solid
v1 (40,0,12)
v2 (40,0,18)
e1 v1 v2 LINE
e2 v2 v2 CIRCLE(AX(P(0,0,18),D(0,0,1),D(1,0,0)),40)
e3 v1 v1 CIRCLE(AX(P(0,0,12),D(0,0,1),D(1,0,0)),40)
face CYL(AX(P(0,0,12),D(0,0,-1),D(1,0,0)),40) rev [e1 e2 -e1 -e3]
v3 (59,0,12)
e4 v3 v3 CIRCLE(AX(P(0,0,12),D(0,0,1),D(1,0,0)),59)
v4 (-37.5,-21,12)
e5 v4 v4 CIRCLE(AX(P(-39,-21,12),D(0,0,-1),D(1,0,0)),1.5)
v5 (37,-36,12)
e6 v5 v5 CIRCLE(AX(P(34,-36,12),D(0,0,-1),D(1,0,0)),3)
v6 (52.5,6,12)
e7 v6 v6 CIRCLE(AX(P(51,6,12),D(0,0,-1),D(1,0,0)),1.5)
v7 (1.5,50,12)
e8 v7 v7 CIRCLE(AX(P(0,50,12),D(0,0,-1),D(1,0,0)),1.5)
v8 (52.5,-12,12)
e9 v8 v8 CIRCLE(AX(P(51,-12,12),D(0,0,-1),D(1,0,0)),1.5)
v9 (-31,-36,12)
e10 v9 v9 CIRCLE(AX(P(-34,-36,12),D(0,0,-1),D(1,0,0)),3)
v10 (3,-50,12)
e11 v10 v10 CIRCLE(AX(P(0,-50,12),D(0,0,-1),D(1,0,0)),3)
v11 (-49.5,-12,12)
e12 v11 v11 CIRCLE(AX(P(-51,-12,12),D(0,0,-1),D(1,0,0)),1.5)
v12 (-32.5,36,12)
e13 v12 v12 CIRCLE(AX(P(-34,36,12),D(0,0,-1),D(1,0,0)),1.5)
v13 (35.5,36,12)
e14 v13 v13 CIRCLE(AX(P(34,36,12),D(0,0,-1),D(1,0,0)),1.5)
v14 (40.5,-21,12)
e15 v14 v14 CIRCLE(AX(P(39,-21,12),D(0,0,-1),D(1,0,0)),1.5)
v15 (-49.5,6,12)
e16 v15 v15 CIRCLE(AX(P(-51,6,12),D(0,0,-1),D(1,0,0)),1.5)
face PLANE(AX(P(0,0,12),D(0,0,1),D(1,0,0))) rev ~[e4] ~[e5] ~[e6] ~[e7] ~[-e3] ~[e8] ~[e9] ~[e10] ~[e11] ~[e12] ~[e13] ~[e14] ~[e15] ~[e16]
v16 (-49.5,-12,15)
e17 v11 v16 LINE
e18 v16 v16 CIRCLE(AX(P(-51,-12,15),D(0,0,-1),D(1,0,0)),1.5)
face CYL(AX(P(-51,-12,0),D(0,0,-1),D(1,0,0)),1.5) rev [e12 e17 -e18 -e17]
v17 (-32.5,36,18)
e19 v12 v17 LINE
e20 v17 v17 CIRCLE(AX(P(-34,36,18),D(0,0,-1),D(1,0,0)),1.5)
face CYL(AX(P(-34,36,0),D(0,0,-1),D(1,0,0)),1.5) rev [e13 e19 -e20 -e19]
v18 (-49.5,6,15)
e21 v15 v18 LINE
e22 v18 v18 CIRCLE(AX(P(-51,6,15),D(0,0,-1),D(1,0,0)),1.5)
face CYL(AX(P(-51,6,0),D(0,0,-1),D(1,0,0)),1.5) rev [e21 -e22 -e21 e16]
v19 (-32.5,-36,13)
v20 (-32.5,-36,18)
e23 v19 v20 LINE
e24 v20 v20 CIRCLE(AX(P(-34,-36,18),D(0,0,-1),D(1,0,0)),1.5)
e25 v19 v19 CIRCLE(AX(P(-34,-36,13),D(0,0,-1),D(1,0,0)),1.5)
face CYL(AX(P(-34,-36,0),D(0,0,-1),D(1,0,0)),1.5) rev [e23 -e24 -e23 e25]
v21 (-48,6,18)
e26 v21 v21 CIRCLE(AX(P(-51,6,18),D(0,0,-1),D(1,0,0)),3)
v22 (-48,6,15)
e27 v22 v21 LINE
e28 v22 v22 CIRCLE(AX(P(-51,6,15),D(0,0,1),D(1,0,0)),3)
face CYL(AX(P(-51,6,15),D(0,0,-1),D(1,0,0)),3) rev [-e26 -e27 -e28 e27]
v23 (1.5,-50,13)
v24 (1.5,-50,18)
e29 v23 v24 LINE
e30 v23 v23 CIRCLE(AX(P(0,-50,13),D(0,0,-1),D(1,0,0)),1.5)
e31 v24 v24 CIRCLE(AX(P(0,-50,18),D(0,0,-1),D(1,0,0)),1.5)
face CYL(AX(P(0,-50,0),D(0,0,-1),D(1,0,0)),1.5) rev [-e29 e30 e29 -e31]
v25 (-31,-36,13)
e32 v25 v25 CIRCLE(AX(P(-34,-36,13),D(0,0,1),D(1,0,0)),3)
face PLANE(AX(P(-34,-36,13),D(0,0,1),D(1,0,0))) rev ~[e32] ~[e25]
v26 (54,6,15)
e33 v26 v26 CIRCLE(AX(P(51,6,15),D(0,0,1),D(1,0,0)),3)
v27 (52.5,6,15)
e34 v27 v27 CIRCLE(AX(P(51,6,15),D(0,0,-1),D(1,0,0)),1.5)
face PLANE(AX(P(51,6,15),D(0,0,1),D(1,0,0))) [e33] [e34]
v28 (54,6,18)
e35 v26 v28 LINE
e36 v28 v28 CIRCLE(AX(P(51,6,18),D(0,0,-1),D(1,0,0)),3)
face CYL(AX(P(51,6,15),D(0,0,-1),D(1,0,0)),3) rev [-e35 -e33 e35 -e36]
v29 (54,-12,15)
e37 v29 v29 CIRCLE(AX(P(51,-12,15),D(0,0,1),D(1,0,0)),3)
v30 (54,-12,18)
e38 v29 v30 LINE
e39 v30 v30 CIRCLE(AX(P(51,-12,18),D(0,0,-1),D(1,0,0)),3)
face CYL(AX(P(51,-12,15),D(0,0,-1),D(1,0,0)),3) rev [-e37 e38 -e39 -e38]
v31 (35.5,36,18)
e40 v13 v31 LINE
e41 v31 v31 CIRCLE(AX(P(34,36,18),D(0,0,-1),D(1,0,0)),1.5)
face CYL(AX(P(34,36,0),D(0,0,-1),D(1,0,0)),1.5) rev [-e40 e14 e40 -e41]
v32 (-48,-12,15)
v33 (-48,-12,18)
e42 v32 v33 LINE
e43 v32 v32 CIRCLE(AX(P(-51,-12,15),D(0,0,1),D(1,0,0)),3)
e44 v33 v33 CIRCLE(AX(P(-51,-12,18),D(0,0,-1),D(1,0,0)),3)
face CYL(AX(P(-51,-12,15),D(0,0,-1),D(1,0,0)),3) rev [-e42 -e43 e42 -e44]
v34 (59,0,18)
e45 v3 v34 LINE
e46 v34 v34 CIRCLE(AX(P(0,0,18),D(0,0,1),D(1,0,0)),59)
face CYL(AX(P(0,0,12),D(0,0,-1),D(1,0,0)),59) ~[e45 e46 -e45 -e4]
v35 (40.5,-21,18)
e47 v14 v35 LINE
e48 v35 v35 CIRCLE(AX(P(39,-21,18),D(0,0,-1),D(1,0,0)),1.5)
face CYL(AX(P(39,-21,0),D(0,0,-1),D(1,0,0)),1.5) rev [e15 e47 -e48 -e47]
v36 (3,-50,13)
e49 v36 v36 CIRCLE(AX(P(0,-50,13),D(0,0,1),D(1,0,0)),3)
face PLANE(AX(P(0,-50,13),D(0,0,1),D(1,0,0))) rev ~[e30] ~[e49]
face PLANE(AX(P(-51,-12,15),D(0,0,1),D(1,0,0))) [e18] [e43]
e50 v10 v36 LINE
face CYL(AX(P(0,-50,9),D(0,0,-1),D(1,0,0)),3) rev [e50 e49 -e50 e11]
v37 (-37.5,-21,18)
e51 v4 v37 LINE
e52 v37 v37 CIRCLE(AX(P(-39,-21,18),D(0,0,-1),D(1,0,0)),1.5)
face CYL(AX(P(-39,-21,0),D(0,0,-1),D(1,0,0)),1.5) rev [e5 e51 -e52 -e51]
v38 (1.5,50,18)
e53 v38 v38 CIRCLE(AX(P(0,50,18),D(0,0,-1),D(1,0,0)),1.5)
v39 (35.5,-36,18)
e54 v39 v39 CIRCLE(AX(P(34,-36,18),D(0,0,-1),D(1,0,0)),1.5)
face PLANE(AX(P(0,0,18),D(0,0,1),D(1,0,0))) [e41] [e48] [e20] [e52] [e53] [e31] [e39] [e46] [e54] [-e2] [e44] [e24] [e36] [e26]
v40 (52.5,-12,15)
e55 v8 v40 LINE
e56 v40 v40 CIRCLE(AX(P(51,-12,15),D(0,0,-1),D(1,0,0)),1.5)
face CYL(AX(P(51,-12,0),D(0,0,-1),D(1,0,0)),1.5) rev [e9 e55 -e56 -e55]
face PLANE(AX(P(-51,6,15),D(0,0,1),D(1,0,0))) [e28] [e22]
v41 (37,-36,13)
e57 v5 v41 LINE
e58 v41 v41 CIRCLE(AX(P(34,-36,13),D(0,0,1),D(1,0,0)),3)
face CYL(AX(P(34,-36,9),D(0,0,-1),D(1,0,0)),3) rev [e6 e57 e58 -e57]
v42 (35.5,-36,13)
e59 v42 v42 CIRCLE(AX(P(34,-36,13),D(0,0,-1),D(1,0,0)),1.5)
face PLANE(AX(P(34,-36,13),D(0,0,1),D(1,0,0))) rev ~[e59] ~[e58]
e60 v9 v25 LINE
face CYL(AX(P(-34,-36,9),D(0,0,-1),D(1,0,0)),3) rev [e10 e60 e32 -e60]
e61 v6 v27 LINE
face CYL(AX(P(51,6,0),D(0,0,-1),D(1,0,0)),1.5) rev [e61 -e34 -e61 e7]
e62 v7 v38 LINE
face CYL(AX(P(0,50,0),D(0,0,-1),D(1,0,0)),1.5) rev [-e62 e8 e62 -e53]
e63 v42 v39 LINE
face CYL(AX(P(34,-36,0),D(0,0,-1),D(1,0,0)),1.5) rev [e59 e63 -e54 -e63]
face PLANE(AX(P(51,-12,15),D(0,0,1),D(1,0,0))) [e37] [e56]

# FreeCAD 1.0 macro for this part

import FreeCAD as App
import Part
import Sketcher
from FreeCAD import Vector
Q = App.Units.Quantity

doc = App.newDocument("Part")
body = doc.addObject("PartDesign::Body", "Body")

# Sketch on XY plane
sketch1 = body.newObject("Sketcher::SketchObject", "Sketch")
sketch1.AttachmentSupport = (doc.getObject("XY_Plane"), [""])
sketch1.MapMode = "FlatFace"
sketch1.addGeometry(Part.Circle(Vector(39, -21, 0), Vector(0, 0, 1), 1.5), False)
sketch1.addConstraint([
    Sketcher.Constraint("Diameter", 0, Q("3 mm")),
    Sketcher.Constraint("DistanceX", -1, 1, 0, 3, Q("39 mm")),
    Sketcher.Constraint("DistanceY", 0, 3, -1, 1, Q("21 mm")),
])
pad1 = body.newObject("PartDesign::Pad", "Pad")
pad1.Profile = sketch1
pad1.Length = 100
body2 = doc.addObject("PartDesign::Body", "Body001")
body2.AllowCompound = True

# Sketch on XY plane
sketch2 = body2.newObject("Sketcher::SketchObject", "Sketch001")
sketch2.AttachmentSupport = (doc.getObject("XY_Plane001"), [""])
sketch2.MapMode = "FlatFace"
sketch2.addGeometry(Part.Circle(Vector(-39, -21, 0), Vector(0, 0, 1), 1.5), False)
sketch2.addConstraint([
    Sketcher.Constraint("Diameter", 0, Q("3 mm")),
    Sketcher.Constraint("DistanceX", 0, 3, -1, 1, Q("39 mm")),
    Sketcher.Constraint("DistanceY", 0, 3, -1, 1, Q("21 mm")),
])
pad2 = body2.newObject("PartDesign::Pad", "Pad001")
pad2.Profile = sketch2
pad2.Length = 100
doc.recompute()

boolean = body2.newObject("PartDesign::Boolean", "Boolean")
boolean.Type = "Fuse"
boolean.addObjects([body])
body3 = doc.addObject("PartDesign::Body", "Body002")

# Sketch on XY plane
sketch3 = body3.newObject("Sketcher::SketchObject", "Sketch002")
sketch3.AttachmentSupport = (doc.getObject("XY_Plane002"), [""])
sketch3.MapMode = "FlatFace"
sketch3.addGeometry(Part.Circle(Vector(0, -50, 0), Vector(0, 0, 1), 1.5), False)
sketch3.addConstraint([
    Sketcher.Constraint("PointOnObject", 0, 3, -2),
    Sketcher.Constraint("Diameter", 0, Q("3 mm")),
    Sketcher.Constraint("DistanceY", 0, 3, -1, 1, Q("50 mm")),
])
pad3 = body3.newObject("PartDesign::Pad", "Pad002")
pad3.Profile = sketch3
pad3.Length = 50
body4 = doc.addObject("PartDesign::Body", "Body003")

# Sketch on XY plane
sketch4 = body4.newObject("Sketcher::SketchObject", "Sketch003")
sketch4.AttachmentSupport = (doc.getObject("XY_Plane003"), [""])
sketch4.MapMode = "FlatFace"
sketch4.AttachmentOffset = App.Placement(Vector(0, 0, 9), App.Rotation())
sketch4.addGeometry(Part.Circle(Vector(0, -50, 0), Vector(0, 0, 1), 3), False)
sketch4.addConstraint([
    Sketcher.Constraint("PointOnObject", 0, 3, -2),
    Sketcher.Constraint("Diameter", 0, Q("6 mm")),
    Sketcher.Constraint("DistanceY", 0, 3, -1, 1, Q("50 mm")),
])
pad4 = body4.newObject("PartDesign::Pad", "Pad003")
pad4.Profile = sketch4
pad4.Length = 4
body5 = doc.addObject("PartDesign::Body", "Body004")

# Sketch on XY plane
sketch5 = body5.newObject("Sketcher::SketchObject", "Sketch004")
sketch5.AttachmentSupport = (doc.getObject("XY_Plane004"), [""])
sketch5.MapMode = "FlatFace"
sketch5.addGeometry(Part.Circle(Vector(0, 50, 0), Vector(0, 0, 1), 1.5), False)
sketch5.addConstraint([
    Sketcher.Constraint("PointOnObject", 0, 3, -2),
    Sketcher.Constraint("Diameter", 0, Q("3 mm")),
    Sketcher.Constraint("DistanceY", -1, 1, 0, 3, Q("50 mm")),
])
pad5 = body5.newObject("PartDesign::Pad", "Pad004")
pad5.Profile = sketch5
pad5.Length = 50
body6 = doc.addObject("PartDesign::Body", "Body005")

# Sketch on XY plane
sketch6 = body6.newObject("Sketcher::SketchObject", "Sketch005")
sketch6.AttachmentSupport = (doc.getObject("XY_Plane005"), [""])
sketch6.MapMode = "FlatFace"
sketch6.addGeometry(Part.Circle(Vector(-34, -36, 0), Vector(0, 0, 1), 1.5), False)
sketch6.addConstraint([
    Sketcher.Constraint("Diameter", 0, Q("3 mm")),
    Sketcher.Constraint("DistanceX", 0, 3, -1, 1, Q("34 mm")),
    Sketcher.Constraint("DistanceY", 0, 3, -1, 1, Q("36 mm")),
])
pad6 = body6.newObject("PartDesign::Pad", "Pad005")
pad6.Profile = sketch6
pad6.Length = 50
body7 = doc.addObject("PartDesign::Body", "Body006")
body7.AllowCompound = True

# Sketch on XY plane
sketch7 = body7.newObject("Sketcher::SketchObject", "Sketch006")
sketch7.AttachmentSupport = (doc.getObject("XY_Plane006"), [""])
sketch7.MapMode = "FlatFace"
sketch7.addGeometry(Part.Circle(Vector(34, -36, 0), Vector(0, 0, 1), 1.5), False)
sketch7.addConstraint([
    Sketcher.Constraint("Diameter", 0, Q("3 mm")),
    Sketcher.Constraint("DistanceX", -1, 1, 0, 3, Q("34 mm")),
    Sketcher.Constraint("DistanceY", 0, 3, -1, 1, Q("36 mm")),
])
pad7 = body7.newObject("PartDesign::Pad", "Pad006")
pad7.Profile = sketch7
pad7.Length = 50
doc.recompute()

boolean2 = body7.newObject("PartDesign::Boolean", "Boolean001")
boolean2.Type = "Fuse"
boolean2.addObjects([body6])
body8 = doc.addObject("PartDesign::Body", "Body007")

# Sketch on XY plane
sketch8 = body8.newObject("Sketcher::SketchObject", "Sketch007")
sketch8.AttachmentSupport = (doc.getObject("XY_Plane007"), [""])
sketch8.MapMode = "FlatFace"
sketch8.addGeometry(Part.Circle(Vector(-34, -36, 0), Vector(0, 0, 1), 3), False)
sketch8.addConstraint([
    Sketcher.Constraint("Diameter", 0, Q("6 mm")),
    Sketcher.Constraint("DistanceX", 0, 3, -1, 1, Q("34 mm")),
    Sketcher.Constraint("DistanceY", 0, 3, -1, 1, Q("36 mm")),
])
pad8 = body8.newObject("PartDesign::Pad", "Pad007")
pad8.Profile = sketch8
pad8.Length = 4
body9 = doc.addObject("PartDesign::Body", "Body008")
body9.AllowCompound = True

# Sketch on XY plane
sketch9 = body9.newObject("Sketcher::SketchObject", "Sketch008")
sketch9.AttachmentSupport = (doc.getObject("XY_Plane008"), [""])
sketch9.MapMode = "FlatFace"
sketch9.addGeometry(Part.Circle(Vector(34, -36, 0), Vector(0, 0, 1), 3), False)
sketch9.addConstraint([
    Sketcher.Constraint("Diameter", 0, Q("6 mm")),
    Sketcher.Constraint("DistanceX", -1, 1, 0, 3, Q("34 mm")),
    Sketcher.Constraint("DistanceY", 0, 3, -1, 1, Q("36 mm")),
])
pad9 = body9.newObject("PartDesign::Pad", "Pad008")
pad9.Profile = sketch9
pad9.Length = 4
doc.recompute()

boolean3 = body9.newObject("PartDesign::Boolean", "Boolean002")
boolean3.Type = "Fuse"
boolean3.addObjects([body8])
body10 = doc.addObject("PartDesign::Body", "Body009")
body10.AllowCompound = True
doc.recompute()

body9.Placement = App.Placement(Vector(0, 0, 9), App.Rotation(Vector(0, 0, 1), 0))
boolean4 = body10.newObject("PartDesign::Boolean", "Boolean003")
boolean4.Type = "Fuse"
boolean4.addObjects([body9])
body11 = doc.addObject("PartDesign::Body", "Body010")

# Sketch on XY plane
sketch10 = body11.newObject("Sketcher::SketchObject", "Sketch009")
sketch10.AttachmentSupport = (doc.getObject("XY_Plane010"), [""])
sketch10.MapMode = "FlatFace"
sketch10.AttachmentOffset = App.Placement(Vector(0, 0, 17), App.Rotation())
sketch10.addGeometry(Part.Circle(Vector(-51, 6, 0), Vector(0, 0, 1), 3), False)
sketch10.addConstraint([
    Sketcher.Constraint("Diameter", 0, Q("6 mm")),
    Sketcher.Constraint("DistanceX", 0, 3, -1, 1, Q("51 mm")),
    Sketcher.Constraint("DistanceY", -1, 1, 0, 3, Q("6 mm")),
])
pad10 = body11.newObject("PartDesign::Pad", "Pad009")
pad10.Profile = sketch10
pad10.Length = 4
body12 = doc.addObject("PartDesign::Body", "Body011")
body12.AllowCompound = True

# Sketch on XY plane
sketch11 = body12.newObject("Sketcher::SketchObject", "Sketch010")
sketch11.AttachmentSupport = (doc.getObject("XY_Plane011"), [""])
sketch11.MapMode = "FlatFace"
sketch11.AttachmentOffset = App.Placement(Vector(0, 0, 17), App.Rotation())
sketch11.addGeometry(Part.Circle(Vector(51, 6, 0), Vector(0, 0, 1), 3), False)
sketch11.addConstraint([
    Sketcher.Constraint("Diameter", 0, Q("6 mm")),
    Sketcher.Constraint("DistanceX", -1, 1, 0, 3, Q("51 mm")),
    Sketcher.Constraint("DistanceY", -1, 1, 0, 3, Q("6 mm")),
])
pad11 = body12.newObject("PartDesign::Pad", "Pad010")
pad11.Profile = sketch11
pad11.Length = 4
doc.recompute()

boolean5 = body12.newObject("PartDesign::Boolean", "Boolean004")
boolean5.Type = "Fuse"
boolean5.addObjects([body11])
body13 = doc.addObject("PartDesign::Body", "Body012")
body13.AllowCompound = True
doc.recompute()

body12.Placement = App.Placement(Vector(0, 0, -2), App.Rotation(Vector(0, 0, 1), 0))
boolean6 = body13.newObject("PartDesign::Boolean", "Boolean005")
boolean6.Type = "Fuse"
boolean6.addObjects([body12])
body14 = doc.addObject("PartDesign::Body", "Body013")

# Sketch on XY plane
sketch12 = body14.newObject("Sketcher::SketchObject", "Sketch011")
sketch12.AttachmentSupport = (doc.getObject("XY_Plane013"), [""])
sketch12.MapMode = "FlatFace"
sketch12.addGeometry(Part.Circle(Vector(51, -12, 0), Vector(0, 0, 1), 3), False)
sketch12.addConstraint([
    Sketcher.Constraint("Diameter", 0, Q("6 mm")),
    Sketcher.Constraint("DistanceX", -1, 1, 0, 3, Q("51 mm")),
    Sketcher.Constraint("DistanceY", 0, 3, -1, 1, Q("12 mm")),
])
pad12 = body14.newObject("PartDesign::Pad", "Pad011")
pad12.Profile = sketch12
pad12.Length = 4
body15 = doc.addObject("PartDesign::Body", "Body014")
body15.AllowCompound = True

# Sketch on XY plane
sketch13 = body15.newObject("Sketcher::SketchObject", "Sketch012")
sketch13.AttachmentSupport = (doc.getObject("XY_Plane014"), [""])
sketch13.MapMode = "FlatFace"
sketch13.addGeometry(Part.Circle(Vector(-51, -12, 0), Vector(0, 0, 1), 3), False)
sketch13.addConstraint([
    Sketcher.Constraint("Diameter", 0, Q("6 mm")),
    Sketcher.Constraint("DistanceX", 0, 3, -1, 1, Q("51 mm")),
    Sketcher.Constraint("DistanceY", 0, 3, -1, 1, Q("12 mm")),
])
pad13 = body15.newObject("PartDesign::Pad", "Pad012")
pad13.Profile = sketch13
pad13.Length = 4
doc.recompute()

boolean7 = body15.newObject("PartDesign::Boolean", "Boolean006")
boolean7.Type = "Fuse"
boolean7.addObjects([body14])
body16 = doc.addObject("PartDesign::Body", "Body015")
body16.AllowCompound = True
doc.recompute()

body15.Placement = App.Placement(Vector(0, 0, 15), App.Rotation(Vector(0, 0, 1), 0))
boolean8 = body16.newObject("PartDesign::Boolean", "Boolean007")
boolean8.Type = "Fuse"
boolean8.addObjects([body15])
body17 = doc.addObject("PartDesign::Body", "Body016")

# Sketch on XY plane
sketch14 = body17.newObject("Sketcher::SketchObject", "Sketch013")
sketch14.AttachmentSupport = (doc.getObject("XY_Plane016"), [""])
sketch14.MapMode = "FlatFace"
sketch14.addGeometry(Part.Circle(Vector(-34, 36, 0), Vector(0, 0, 1), 1.5), False)
sketch14.addConstraint([
    Sketcher.Constraint("Diameter", 0, Q("3 mm")),
    Sketcher.Constraint("DistanceX", 0, 3, -1, 1, Q("34 mm")),
    Sketcher.Constraint("DistanceY", -1, 1, 0, 3, Q("36 mm")),
])
pad14 = body17.newObject("PartDesign::Pad", "Pad013")
pad14.Profile = sketch14
pad14.Length = 50
body18 = doc.addObject("PartDesign::Body", "Body017")

# Sketch on XY plane
sketch15 = body18.newObject("Sketcher::SketchObject", "Sketch014")
sketch15.AttachmentSupport = (doc.getObject("XY_Plane017"), [""])
sketch15.MapMode = "FlatFace"
sketch15.addGeometry(Part.Circle(Vector(34, 36, 0), Vector(0, 0, 1), 1.5), False)
sketch15.addConstraint([
    Sketcher.Constraint("Diameter", 0, Q("3 mm")),
    Sketcher.Constraint("DistanceX", -1, 1, 0, 3, Q("34 mm")),
    Sketcher.Constraint("DistanceY", -1, 1, 0, 3, Q("36 mm")),
])
pad15 = body18.newObject("PartDesign::Pad", "Pad014")
pad15.Profile = sketch15
pad15.Length = 50
body19 = doc.addObject("PartDesign::Body", "Body018")

# Sketch on XY plane
sketch16 = body19.newObject("Sketcher::SketchObject", "Sketch015")
sketch16.AttachmentSupport = (doc.getObject("XY_Plane018"), [""])
sketch16.MapMode = "FlatFace"
sketch16.addGeometry(Part.Circle(Vector(51, 6, 0), Vector(0, 0, 1), 1.5), False)
sketch16.addConstraint([
    Sketcher.Constraint("Diameter", 0, Q("3 mm")),
    Sketcher.Constraint("DistanceX", -1, 1, 0, 3, Q("51 mm")),
    Sketcher.Constraint("DistanceY", -1, 1, 0, 3, Q("6 mm")),
])
pad16 = body19.newObject("PartDesign::Pad", "Pad015")
pad16.Profile = sketch16
pad16.Length = 50
body20 = doc.addObject("PartDesign::Body", "Body019")

# Sketch on XY plane
sketch17 = body20.newObject("Sketcher::SketchObject", "Sketch016")
sketch17.AttachmentSupport = (doc.getObject("XY_Plane019"), [""])
sketch17.MapMode = "FlatFace"
sketch17.addGeometry(Part.Circle(Vector(-51, 6, 0), Vector(0, 0, 1), 1.5), False)
sketch17.addConstraint([
    Sketcher.Constraint("Diameter", 0, Q("3 mm")),
    Sketcher.Constraint("DistanceX", 0, 3, -1, 1, Q("51 mm")),
    Sketcher.Constraint("DistanceY", -1, 1, 0, 3, Q("6 mm")),
])
pad17 = body20.newObject("PartDesign::Pad", "Pad016")
pad17.Profile = sketch17
pad17.Length = 50
body21 = doc.addObject("PartDesign::Body", "Body020")

# Sketch on XY plane
sketch18 = body21.newObject("Sketcher::SketchObject", "Sketch017")
sketch18.AttachmentSupport = (doc.getObject("XY_Plane020"), [""])
sketch18.MapMode = "FlatFace"
sketch18.addGeometry(Part.Circle(Vector(51, -12, 0), Vector(0, 0, 1), 1.5), False)
sketch18.addConstraint([
    Sketcher.Constraint("Diameter", 0, Q("3 mm")),
    Sketcher.Constraint("DistanceX", -1, 1, 0, 3, Q("51 mm")),
    Sketcher.Constraint("DistanceY", 0, 3, -1, 1, Q("12 mm")),
])
pad18 = body21.newObject("PartDesign::Pad", "Pad017")
pad18.Profile = sketch18
pad18.Length = 100
body22 = doc.addObject("PartDesign::Body", "Body021")
body22.AllowCompound = True

# Sketch on XY plane
sketch19 = body22.newObject("Sketcher::SketchObject", "Sketch018")
sketch19.AttachmentSupport = (doc.getObject("XY_Plane021"), [""])
sketch19.MapMode = "FlatFace"
sketch19.addGeometry(Part.Circle(Vector(-51, -12, 0), Vector(0, 0, 1), 1.5), False)
sketch19.addConstraint([
    Sketcher.Constraint("Diameter", 0, Q("3 mm")),
    Sketcher.Constraint("DistanceX", 0, 3, -1, 1, Q("51 mm")),
    Sketcher.Constraint("DistanceY", 0, 3, -1, 1, Q("12 mm")),
])
pad19 = body22.newObject("PartDesign::Pad", "Pad018")
pad19.Profile = sketch19
pad19.Length = 100
doc.recompute()

boolean9 = body22.newObject("PartDesign::Boolean", "Boolean008")
boolean9.Type = "Fuse"
boolean9.addObjects([body17])
doc.recompute()

boolean10 = body22.newObject("PartDesign::Boolean", "Boolean009")
boolean10.Type = "Fuse"
boolean10.addObjects([body18])
doc.recompute()

boolean11 = body22.newObject("PartDesign::Boolean", "Boolean010")
boolean11.Type = "Fuse"
boolean11.addObjects([body19])
doc.recompute()

boolean12 = body22.newObject("PartDesign::Boolean", "Boolean011")
boolean12.Type = "Fuse"
boolean12.addObjects([body20])
doc.recompute()

boolean13 = body22.newObject("PartDesign::Boolean", "Boolean012")
boolean13.Type = "Fuse"
boolean13.addObjects([body21])
body23 = doc.addObject("PartDesign::Body", "Body022")

# Sketch on XY plane
sketch20 = body23.newObject("Sketcher::SketchObject", "Sketch019")
sketch20.AttachmentSupport = (doc.getObject("XY_Plane022"), [""])
sketch20.MapMode = "FlatFace"
sketch20.addGeometry(Part.Circle(Vector(34, 36, 0), Vector(0, 0, 1), 1.5), False)
sketch20.addConstraint([
    Sketcher.Constraint("Diameter", 0, Q("3 mm")),
    Sketcher.Constraint("DistanceX", -1, 1, 0, 3, Q("34 mm")),
    Sketcher.Constraint("DistanceY", -1, 1, 0, 3, Q("36 mm")),
])
pad20 = body23.newObject("PartDesign::Pad", "Pad019")
pad20.Profile = sketch20
pad20.Length = 50
body24 = doc.addObject("PartDesign::Body", "Body023")
body24.AllowCompound = True

# Sketch on XY plane
sketch21 = body24.newObject("Sketcher::SketchObject", "Sketch020")
sketch21.AttachmentSupport = (doc.getObject("XY_Plane023"), [""])
sketch21.MapMode = "FlatFace"
sketch21.addGeometry(Part.Circle(Vector(-34, 36, 0), Vector(0, 0, 1), 1.5), False)
sketch21.addConstraint([
    Sketcher.Constraint("Diameter", 0, Q("3 mm")),
    Sketcher.Constraint("DistanceX", 0, 3, -1, 1, Q("34 mm")),
    Sketcher.Constraint("DistanceY", -1, 1, 0, 3, Q("36 mm")),
])
pad21 = body24.newObject("PartDesign::Pad", "Pad020")
pad21.Profile = sketch21
pad21.Length = 50
doc.recompute()

boolean14 = body24.newObject("PartDesign::Boolean", "Boolean013")
boolean14.Type = "Fuse"
boolean14.addObjects([body23])
body25 = doc.addObject("PartDesign::Body", "Body024")

# Sketch on XY plane
sketch22 = body25.newObject("Sketcher::SketchObject", "Sketch021")
sketch22.AttachmentSupport = (doc.getObject("XY_Plane024"), [""])
sketch22.MapMode = "FlatFace"
sketch22.AttachmentOffset = App.Placement(Vector(0, 0, 12), App.Rotation())
sketch22.addGeometry([
    Part.Circle(Vector(0, 0, 0), Vector(0, 0, 1), 59),
    Part.Circle(Vector(0, 0, 0), Vector(0, 0, 1), 40),
], False)
sketch22.addConstraint([
    Sketcher.Constraint("Coincident", 0, 3, -1, 1),
    Sketcher.Constraint("Coincident", 1, 3, -1, 1),
    Sketcher.Constraint("Diameter", 0, Q("118 mm")),
    Sketcher.Constraint("Diameter", 1, Q("80 mm")),
])
pad22 = body25.newObject("PartDesign::Pad", "Pad021")
pad22.Profile = sketch22
pad22.Length = 6
doc.recompute()

boolean15 = body25.newObject("PartDesign::Boolean", "Boolean014")
boolean15.Type = "Cut"
boolean15.addObjects([body24])
doc.recompute()

boolean16 = body25.newObject("PartDesign::Boolean", "Boolean015")
boolean16.Type = "Cut"
boolean16.addObjects([body22])
doc.recompute()

boolean17 = body25.newObject("PartDesign::Boolean", "Boolean016")
boolean17.Type = "Cut"
boolean17.addObjects([body16])
doc.recompute()

boolean18 = body25.newObject("PartDesign::Boolean", "Boolean017")
boolean18.Type = "Cut"
boolean18.addObjects([body13])
doc.recompute()

boolean19 = body25.newObject("PartDesign::Boolean", "Boolean018")
boolean19.Type = "Cut"
boolean19.addObjects([body10])
doc.recompute()

boolean20 = body25.newObject("PartDesign::Boolean", "Boolean019")
boolean20.Type = "Cut"
boolean20.addObjects([body7])
doc.recompute()

boolean21 = body25.newObject("PartDesign::Boolean", "Boolean020")
boolean21.Type = "Cut"
boolean21.addObjects([body5])
doc.recompute()

boolean22 = body25.newObject("PartDesign::Boolean", "Boolean021")
boolean22.Type = "Cut"
boolean22.addObjects([body4])
doc.recompute()

boolean23 = body25.newObject("PartDesign::Boolean", "Boolean022")
boolean23.Type = "Cut"
boolean23.addObjects([body3])
doc.recompute()

boolean24 = body25.newObject("PartDesign::Boolean", "Boolean023")
boolean24.Type = "Cut"
boolean24.addObjects([body2])

doc.recompute()
